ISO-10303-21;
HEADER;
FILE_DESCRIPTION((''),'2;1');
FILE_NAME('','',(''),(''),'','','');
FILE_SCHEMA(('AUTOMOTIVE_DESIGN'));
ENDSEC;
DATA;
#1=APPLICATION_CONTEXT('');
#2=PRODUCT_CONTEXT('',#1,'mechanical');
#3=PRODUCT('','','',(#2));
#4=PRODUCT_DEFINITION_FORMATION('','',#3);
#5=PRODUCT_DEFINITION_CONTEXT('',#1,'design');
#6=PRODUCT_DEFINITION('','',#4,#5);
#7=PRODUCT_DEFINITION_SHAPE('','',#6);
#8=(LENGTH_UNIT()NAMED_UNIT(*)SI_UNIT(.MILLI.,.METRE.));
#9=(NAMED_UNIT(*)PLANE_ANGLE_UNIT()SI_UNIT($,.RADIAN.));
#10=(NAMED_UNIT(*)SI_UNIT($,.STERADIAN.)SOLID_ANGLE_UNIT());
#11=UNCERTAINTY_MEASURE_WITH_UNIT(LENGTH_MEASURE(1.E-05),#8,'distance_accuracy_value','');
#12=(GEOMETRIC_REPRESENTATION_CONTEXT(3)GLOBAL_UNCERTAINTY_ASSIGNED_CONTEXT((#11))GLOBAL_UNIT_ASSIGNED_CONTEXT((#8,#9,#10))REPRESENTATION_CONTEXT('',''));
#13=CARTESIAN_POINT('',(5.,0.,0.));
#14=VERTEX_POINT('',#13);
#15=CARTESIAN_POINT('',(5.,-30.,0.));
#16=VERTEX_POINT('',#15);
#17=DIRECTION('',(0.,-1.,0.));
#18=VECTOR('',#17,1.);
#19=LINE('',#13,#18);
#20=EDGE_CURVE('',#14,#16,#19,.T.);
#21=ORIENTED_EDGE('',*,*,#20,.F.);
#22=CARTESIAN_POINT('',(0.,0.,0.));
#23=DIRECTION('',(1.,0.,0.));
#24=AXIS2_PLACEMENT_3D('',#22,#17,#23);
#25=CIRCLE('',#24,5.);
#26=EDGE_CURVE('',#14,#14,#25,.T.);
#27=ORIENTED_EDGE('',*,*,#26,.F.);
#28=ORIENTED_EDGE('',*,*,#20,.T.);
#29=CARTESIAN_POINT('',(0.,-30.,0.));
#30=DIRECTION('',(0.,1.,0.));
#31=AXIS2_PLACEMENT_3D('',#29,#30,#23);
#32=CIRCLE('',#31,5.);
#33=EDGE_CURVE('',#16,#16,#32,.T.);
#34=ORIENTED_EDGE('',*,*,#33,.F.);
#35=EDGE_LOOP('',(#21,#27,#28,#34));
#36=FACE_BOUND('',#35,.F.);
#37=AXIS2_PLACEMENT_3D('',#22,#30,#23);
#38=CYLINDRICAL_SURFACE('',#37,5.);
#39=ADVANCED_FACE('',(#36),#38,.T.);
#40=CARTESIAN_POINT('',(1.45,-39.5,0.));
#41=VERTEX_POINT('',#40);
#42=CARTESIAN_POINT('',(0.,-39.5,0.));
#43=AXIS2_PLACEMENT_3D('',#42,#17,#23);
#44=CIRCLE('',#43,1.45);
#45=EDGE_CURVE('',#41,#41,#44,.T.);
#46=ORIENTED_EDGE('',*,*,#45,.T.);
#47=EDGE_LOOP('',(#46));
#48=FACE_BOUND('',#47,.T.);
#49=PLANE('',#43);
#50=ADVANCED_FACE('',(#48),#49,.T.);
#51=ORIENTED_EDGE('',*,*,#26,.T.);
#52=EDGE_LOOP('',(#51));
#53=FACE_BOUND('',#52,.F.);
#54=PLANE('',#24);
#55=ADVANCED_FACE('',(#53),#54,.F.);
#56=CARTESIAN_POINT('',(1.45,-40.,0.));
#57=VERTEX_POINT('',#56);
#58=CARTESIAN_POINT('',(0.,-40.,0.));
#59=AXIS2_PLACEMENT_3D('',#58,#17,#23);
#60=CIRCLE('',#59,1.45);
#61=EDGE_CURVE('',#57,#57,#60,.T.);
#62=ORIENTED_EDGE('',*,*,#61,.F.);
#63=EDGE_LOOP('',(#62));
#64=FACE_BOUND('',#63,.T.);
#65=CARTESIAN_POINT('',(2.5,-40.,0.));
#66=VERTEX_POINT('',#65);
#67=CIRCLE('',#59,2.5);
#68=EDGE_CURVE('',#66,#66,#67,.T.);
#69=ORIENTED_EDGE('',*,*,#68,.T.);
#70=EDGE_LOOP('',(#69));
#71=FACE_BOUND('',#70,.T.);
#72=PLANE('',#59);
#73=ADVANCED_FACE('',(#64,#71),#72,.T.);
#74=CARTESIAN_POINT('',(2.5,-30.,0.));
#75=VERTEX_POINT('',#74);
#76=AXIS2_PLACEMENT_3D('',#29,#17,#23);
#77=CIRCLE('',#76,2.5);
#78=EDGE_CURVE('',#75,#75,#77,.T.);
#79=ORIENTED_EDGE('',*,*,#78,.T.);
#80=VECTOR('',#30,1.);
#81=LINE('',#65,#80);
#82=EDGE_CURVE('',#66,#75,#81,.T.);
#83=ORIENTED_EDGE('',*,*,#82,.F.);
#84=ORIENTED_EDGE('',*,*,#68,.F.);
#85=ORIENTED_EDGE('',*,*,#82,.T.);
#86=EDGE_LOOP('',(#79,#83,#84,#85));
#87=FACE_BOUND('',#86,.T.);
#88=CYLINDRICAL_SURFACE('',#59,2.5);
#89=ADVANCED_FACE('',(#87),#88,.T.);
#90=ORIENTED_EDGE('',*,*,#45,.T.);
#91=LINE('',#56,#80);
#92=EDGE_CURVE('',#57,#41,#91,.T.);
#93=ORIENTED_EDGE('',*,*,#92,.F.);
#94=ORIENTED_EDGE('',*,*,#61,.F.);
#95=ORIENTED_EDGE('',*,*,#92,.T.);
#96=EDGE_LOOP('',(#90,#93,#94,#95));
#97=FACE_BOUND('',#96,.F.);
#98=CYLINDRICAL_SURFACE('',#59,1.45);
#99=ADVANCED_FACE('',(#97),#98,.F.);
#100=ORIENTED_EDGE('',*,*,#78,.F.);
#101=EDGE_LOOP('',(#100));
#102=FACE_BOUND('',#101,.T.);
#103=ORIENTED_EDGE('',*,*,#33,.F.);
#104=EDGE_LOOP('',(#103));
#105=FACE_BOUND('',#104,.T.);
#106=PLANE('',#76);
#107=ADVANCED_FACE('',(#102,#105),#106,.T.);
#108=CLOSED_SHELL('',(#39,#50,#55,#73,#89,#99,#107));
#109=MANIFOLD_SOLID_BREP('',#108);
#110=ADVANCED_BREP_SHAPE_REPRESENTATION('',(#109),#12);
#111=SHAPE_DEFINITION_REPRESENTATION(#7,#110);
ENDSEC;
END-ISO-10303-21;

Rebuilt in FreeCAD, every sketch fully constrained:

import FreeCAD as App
import Part
import Sketcher

V = App.Vector
Q = App.Units.Quantity

doc = App.newDocument("Part")
params = doc.addObject("Spreadsheet::Sheet", "Params")
for row, (alias, value) in enumerate([
    ("sketch1_diameter", "10 mm"),
    ("pad1_length", "40 mm"),
    ("sketch2_diameter", "11 mm"),
    ("sketch2_diameter2", "5 mm"),
    ("pocket1_length", "10 mm"),
    ("sketch3_diameter", "2.9 mm"),
    ("pocket2_length", "0.5 mm"),
], start=1):
    params.set(f"A{row}", alias)
    params.set(f"B{row}", "=" + value)
    params.setAlias(f"B{row}", alias)

body = doc.addObject("PartDesign::Body", "Body")

sketch1 = body.newObject("Sketcher::SketchObject", "Sketch")
sketch1.AttachmentSupport = (doc.getObject("XZ_Plane"), [""])
sketch1.MapMode = "FlatFace"
sketch1.addGeometry(Part.Circle(V(0, 0, 0), V(0, 0, 1), 5), False)
sketch1.addConstraint([
    Sketcher.Constraint("Coincident", 0, 3, -1, 1),
    Sketcher.Constraint("Diameter", 0, Q("10 mm")),
])
sketch1.setExpression("Constraints[1]", "Params.sketch1_diameter")
pad1 = body.newObject("PartDesign::Pad", "Pad")
pad1.Profile = sketch1
pad1.setExpression("Length", "Params.pad1_length")

sketch2 = body.newObject("Sketcher::SketchObject", "Sketch001")
sketch2.AttachmentSupport = (doc.getObject("XZ_Plane"), [""])
sketch2.MapMode = "FlatFace"
sketch2.AttachmentOffset = App.Placement(V(0, 0, 40), App.Rotation())
sketch2.addGeometry([
    Part.Circle(V(0, 0, 0), V(0, 0, 1), 5.5),
    Part.Circle(V(0, 0, 0), V(0, 0, 1), 2.5),
], False)
sketch2.addConstraint([
    Sketcher.Constraint("Coincident", 0, 3, -1, 1),
    Sketcher.Constraint("Coincident", 1, 3, -1, 1),
    Sketcher.Constraint("Diameter", 0, Q("11 mm")),
    Sketcher.Constraint("Diameter", 1, Q("5 mm")),
])
sketch2.setExpression("Constraints[2]", "Params.sketch2_diameter")
sketch2.setExpression("Constraints[3]", "Params.sketch2_diameter2")
pocket1 = body.newObject("PartDesign::Pocket", "Pocket")
pocket1.Profile = sketch2
pocket1.setExpression("Length", "Params.pocket1_length")

sketch3 = body.newObject("Sketcher::SketchObject", "Sketch002")
sketch3.AttachmentSupport = (doc.getObject("XZ_Plane"), [""])
sketch3.MapMode = "FlatFace"
sketch3.AttachmentOffset = App.Placement(V(0, 0, 40), App.Rotation())
sketch3.addGeometry(Part.Circle(V(0, 0, 0), V(0, 0, 1), 1.4), False)
sketch3.addConstraint([
    Sketcher.Constraint("Coincident", 0, 3, -1, 1),
    Sketcher.Constraint("Diameter", 0, Q("2.9 mm")),
])
sketch3.setExpression("Constraints[1]", "Params.sketch3_diameter")
pocket2 = body.newObject("PartDesign::Pocket", "Pocket001")
pocket2.Profile = sketch3
pocket2.setExpression("Length", "Params.pocket2_length")

doc.recompute()
